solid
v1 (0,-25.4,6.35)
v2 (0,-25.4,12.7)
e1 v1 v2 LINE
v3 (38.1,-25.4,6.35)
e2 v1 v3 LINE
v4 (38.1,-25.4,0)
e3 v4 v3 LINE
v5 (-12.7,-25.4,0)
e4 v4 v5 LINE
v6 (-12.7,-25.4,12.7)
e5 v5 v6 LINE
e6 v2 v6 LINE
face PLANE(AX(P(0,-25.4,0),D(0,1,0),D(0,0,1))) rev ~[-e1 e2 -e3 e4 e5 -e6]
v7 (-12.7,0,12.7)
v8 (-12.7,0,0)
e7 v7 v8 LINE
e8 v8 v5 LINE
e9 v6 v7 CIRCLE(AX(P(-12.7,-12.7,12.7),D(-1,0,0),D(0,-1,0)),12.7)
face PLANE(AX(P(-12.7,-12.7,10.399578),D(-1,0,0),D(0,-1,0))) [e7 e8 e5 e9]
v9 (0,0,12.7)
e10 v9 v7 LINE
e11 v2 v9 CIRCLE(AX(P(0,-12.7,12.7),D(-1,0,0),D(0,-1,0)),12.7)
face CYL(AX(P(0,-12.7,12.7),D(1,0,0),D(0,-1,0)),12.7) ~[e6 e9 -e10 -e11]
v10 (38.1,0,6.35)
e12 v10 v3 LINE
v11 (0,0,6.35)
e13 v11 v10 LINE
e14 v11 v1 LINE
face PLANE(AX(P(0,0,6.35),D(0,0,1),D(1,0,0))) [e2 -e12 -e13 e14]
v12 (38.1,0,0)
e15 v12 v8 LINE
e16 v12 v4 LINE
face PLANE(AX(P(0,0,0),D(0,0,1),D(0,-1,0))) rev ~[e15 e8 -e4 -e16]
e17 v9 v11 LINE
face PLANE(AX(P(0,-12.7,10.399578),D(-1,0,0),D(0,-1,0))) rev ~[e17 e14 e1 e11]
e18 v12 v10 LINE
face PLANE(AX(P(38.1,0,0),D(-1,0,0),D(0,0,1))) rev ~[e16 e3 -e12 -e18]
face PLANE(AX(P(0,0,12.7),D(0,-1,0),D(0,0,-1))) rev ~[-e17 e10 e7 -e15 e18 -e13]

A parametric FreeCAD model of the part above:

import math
import FreeCAD as App
import Part
import Sketcher
Q = App.Units.Quantity


def add_polygon(sketch, points):
    """Adds a closed chain of lines whose ends are joined by coincident constraints."""
    first, n = sketch.GeometryCount, len(points)
    for a, b in zip(points, points[1:] + points[:1]):
        sketch.addGeometry(Part.LineSegment(App.Vector(*a, 0), App.Vector(*b, 0)), False)
    for i in range(n):
        sketch.addConstraint(Sketcher.Constraint("Coincident", first + i, 2, first + (i + 1) % n, 1))

doc = App.newDocument("Part")
body = doc.addObject("PartDesign::Body", "Body")

sketch1 = body.newObject("Sketcher::SketchObject", "Sketch")
sketch1.AttachmentSupport = (doc.getObject("XZ_Plane"), [""])
sketch1.MapMode = "FlatFace"
add_polygon(sketch1, [(0, 6), (0, 0), (38, 0), (38, 6)])
sketch1.addConstraint(Sketcher.Constraint("Vertical", 0))
sketch1.addConstraint(Sketcher.Constraint("Horizontal", 1))
sketch1.addConstraint(Sketcher.Constraint("Vertical", 2))
sketch1.addConstraint(Sketcher.Constraint("Horizontal", 3))
sketch1.addConstraint(Sketcher.Constraint("Coincident", 0, 2, -1, 1))
sketch1.addConstraint(Sketcher.Constraint("DistanceX", 1, 1, 1, 2, Q("1.5 in")))
sketch1.addConstraint(Sketcher.Constraint("DistanceY", 0, 2, 0, 1, Q("0.25 in")))
pad1 = body.newObject("PartDesign::Pad", "Pad")
pad1.Profile = sketch1
pad1.Length = Q("1 in")

sketch2 = body.newObject("Sketcher::SketchObject", "Sketch001")
sketch2.AttachmentSupport = (doc.getObject("YZ_Plane"), [""])
sketch2.MapMode = "FlatFace"
sketch2.addGeometry(Part.LineSegment(App.Vector(0, 13, 0), App.Vector(0, 0, 0)), False)
sketch2.addGeometry(Part.LineSegment(App.Vector(0, 0, 0), App.Vector(-25, 0, 0)), False)
sketch2.addGeometry(Part.LineSegment(App.Vector(-25, 0, 0), App.Vector(-25, 13, 0)), False)
sketch2.addGeometry(Part.ArcOfCircle(Part.Circle(App.Vector(-13, 13, 0), App.Vector(0, 0, 1), 13), math.radians(0), math.radians(180)), False)
sketch2.addConstraint(Sketcher.Constraint("Coincident", 0, 2, 1, 1))
sketch2.addConstraint(Sketcher.Constraint("Coincident", 1, 2, 2, 1))
sketch2.addConstraint(Sketcher.Constraint("Tangent", 2, 2, 3, 2))
sketch2.addConstraint(Sketcher.Constraint("Tangent", 3, 1, 0, 1))
sketch2.addConstraint(Sketcher.Constraint("Vertical", 0))
sketch2.addConstraint(Sketcher.Constraint("Horizontal", 1))
sketch2.addConstraint(Sketcher.Constraint("Vertical", 2))
sketch2.addConstraint(Sketcher.Constraint("Coincident", 0, 2, -1, 1))
sketch2.addConstraint(Sketcher.Constraint("Radius", 3, Q("0.5 in")))
sketch2.addConstraint(Sketcher.Constraint("DistanceY", 0, 2, 0, 1, Q("0.5 in")))
pad2 = body.newObject("PartDesign::Pad", "Pad001")
pad2.Profile = sketch2
pad2.Length = Q("0.5 in")
pad2.Reversed = True

doc.recompute()
